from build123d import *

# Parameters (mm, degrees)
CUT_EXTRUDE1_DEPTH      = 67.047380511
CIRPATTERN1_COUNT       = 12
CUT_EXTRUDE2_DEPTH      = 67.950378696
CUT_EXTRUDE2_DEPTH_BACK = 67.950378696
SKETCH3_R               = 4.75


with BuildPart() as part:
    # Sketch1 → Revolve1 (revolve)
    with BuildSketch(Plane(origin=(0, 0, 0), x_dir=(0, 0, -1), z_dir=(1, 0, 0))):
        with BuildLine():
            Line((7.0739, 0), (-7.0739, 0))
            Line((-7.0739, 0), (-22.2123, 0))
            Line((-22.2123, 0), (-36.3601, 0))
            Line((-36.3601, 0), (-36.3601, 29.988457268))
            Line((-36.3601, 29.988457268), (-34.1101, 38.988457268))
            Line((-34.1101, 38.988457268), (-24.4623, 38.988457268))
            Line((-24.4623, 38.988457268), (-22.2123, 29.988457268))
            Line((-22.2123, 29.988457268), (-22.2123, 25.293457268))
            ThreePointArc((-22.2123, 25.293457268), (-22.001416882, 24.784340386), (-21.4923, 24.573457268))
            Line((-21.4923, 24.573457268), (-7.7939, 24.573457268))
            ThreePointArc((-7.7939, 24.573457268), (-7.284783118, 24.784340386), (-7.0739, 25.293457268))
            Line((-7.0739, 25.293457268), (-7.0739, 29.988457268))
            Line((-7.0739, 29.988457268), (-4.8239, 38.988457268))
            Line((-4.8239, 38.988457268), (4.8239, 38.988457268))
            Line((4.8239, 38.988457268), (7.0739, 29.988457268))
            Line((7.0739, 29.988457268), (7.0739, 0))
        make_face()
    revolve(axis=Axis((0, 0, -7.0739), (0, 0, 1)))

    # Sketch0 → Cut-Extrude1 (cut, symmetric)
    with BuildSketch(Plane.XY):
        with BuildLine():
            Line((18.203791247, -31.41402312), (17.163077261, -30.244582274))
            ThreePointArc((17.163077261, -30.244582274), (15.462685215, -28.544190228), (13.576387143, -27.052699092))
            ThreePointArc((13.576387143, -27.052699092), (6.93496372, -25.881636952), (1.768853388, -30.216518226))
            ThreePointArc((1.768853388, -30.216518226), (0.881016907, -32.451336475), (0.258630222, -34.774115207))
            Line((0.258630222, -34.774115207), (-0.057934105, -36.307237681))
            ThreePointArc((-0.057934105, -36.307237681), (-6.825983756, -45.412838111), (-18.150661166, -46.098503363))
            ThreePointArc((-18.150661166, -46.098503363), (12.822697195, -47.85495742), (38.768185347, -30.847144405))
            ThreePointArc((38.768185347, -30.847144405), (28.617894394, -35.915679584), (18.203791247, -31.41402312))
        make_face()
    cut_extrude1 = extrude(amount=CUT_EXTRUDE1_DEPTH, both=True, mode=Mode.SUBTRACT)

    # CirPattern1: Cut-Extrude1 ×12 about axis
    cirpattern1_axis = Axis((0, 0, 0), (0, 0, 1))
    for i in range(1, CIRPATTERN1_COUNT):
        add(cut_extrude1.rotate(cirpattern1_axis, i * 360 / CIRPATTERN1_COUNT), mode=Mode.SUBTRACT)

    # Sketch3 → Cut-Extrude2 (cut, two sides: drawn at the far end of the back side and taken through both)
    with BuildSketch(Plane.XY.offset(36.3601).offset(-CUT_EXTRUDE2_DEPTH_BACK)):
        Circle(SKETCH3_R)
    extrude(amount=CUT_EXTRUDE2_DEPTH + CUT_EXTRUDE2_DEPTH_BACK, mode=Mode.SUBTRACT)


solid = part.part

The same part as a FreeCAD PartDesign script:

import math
import FreeCAD as App
import Part
import Sketcher
from FreeCAD import Vector
Q = App.Units.Quantity

doc = App.newDocument("Part")
body = doc.addObject("PartDesign::Body", "Body")

# Sketch on YZ plane
sketch1 = doc.addObject("Sketcher::SketchObject", "Sketch")
body.addObject(sketch1)
sketch1.AttachmentSupport = (doc.YZ_Plane, [""])
sketch1.MapMode = "FlatFace"
sketch1.addGeometry(Part.LineSegment(Vector(0, 36.3601, 0), Vector(0, -7.0739, 0)), False)
sketch1.addGeometry(Part.LineSegment(Vector(0, -7.0739, 0), Vector(29.988457, -7.0739, 0)), False)
sketch1.addGeometry(Part.LineSegment(Vector(29.988457, -7.0739, 0), Vector(38.988457, -4.8239, 0)), False)
sketch1.addGeometry(Part.LineSegment(Vector(38.988457, -4.8239, 0), Vector(38.988457, 4.8239, 0)), False)
sketch1.addGeometry(Part.LineSegment(Vector(38.988457, 4.8239, 0), Vector(29.988457, 7.0739, 0)), False)
sketch1.addGeometry(Part.LineSegment(Vector(29.988457, 7.0739, 0), Vector(25.293457, 7.0739, 0)), False)
sketch1.addGeometry(Part.ArcOfCircle(Part.Circle(Vector(25.293457, 7.7939, 0), Vector(0, 0, 1), 0.72), math.radians(-180), math.radians(-90)), False)
sketch1.addGeometry(Part.LineSegment(Vector(24.573457, 7.7939, 0), Vector(24.573457, 21.4923, 0)), False)
sketch1.addGeometry(Part.ArcOfCircle(Part.Circle(Vector(25.293457, 21.4923, 0), Vector(0, 0, 1), 0.72), math.radians(90), math.radians(180)), False)
sketch1.addGeometry(Part.LineSegment(Vector(25.293457, 22.2123, 0), Vector(29.988457, 22.2123, 0)), False)
sketch1.addGeometry(Part.LineSegment(Vector(29.988457, 22.2123, 0), Vector(38.988457, 24.4623, 0)), False)
sketch1.addGeometry(Part.LineSegment(Vector(38.988457, 24.4623, 0), Vector(38.988457, 34.1101, 0)), False)
sketch1.addGeometry(Part.LineSegment(Vector(38.988457, 34.1101, 0), Vector(29.988457, 36.3601, 0)), False)
sketch1.addGeometry(Part.LineSegment(Vector(29.988457, 36.3601, 0), Vector(0, 36.3601, 0)), False)
sketch1.addConstraint(Sketcher.Constraint("Coincident", 0, 2, 1, 1))
sketch1.addConstraint(Sketcher.Constraint("Coincident", 1, 2, 2, 1))
sketch1.addConstraint(Sketcher.Constraint("Coincident", 2, 2, 3, 1))
sketch1.addConstraint(Sketcher.Constraint("Coincident", 3, 2, 4, 1))
sketch1.addConstraint(Sketcher.Constraint("Coincident", 4, 2, 5, 1))
sketch1.addConstraint(Sketcher.Constraint("Tangent", 5, 2, 6, 2))
sketch1.addConstraint(Sketcher.Constraint("Tangent", 6, 1, 7, 1))
sketch1.addConstraint(Sketcher.Constraint("Tangent", 7, 2, 8, 2))
sketch1.addConstraint(Sketcher.Constraint("Tangent", 8, 1, 9, 1))
sketch1.addConstraint(Sketcher.Constraint("Coincident", 9, 2, 10, 1))
sketch1.addConstraint(Sketcher.Constraint("Coincident", 10, 2, 11, 1))
sketch1.addConstraint(Sketcher.Constraint("Coincident", 11, 2, 12, 1))
sketch1.addConstraint(Sketcher.Constraint("Coincident", 12, 2, 13, 1))
sketch1.addConstraint(Sketcher.Constraint("Coincident", 13, 2, 0, 1))
sketch1.addConstraint(Sketcher.Constraint("Vertical", 0))
sketch1.addConstraint(Sketcher.Constraint("Horizontal", 1))
sketch1.addConstraint(Sketcher.Constraint("Vertical", 3))
sketch1.addConstraint(Sketcher.Constraint("Horizontal", 5))
sketch1.addConstraint(Sketcher.Constraint("Vertical", 7))
sketch1.addConstraint(Sketcher.Constraint("Horizontal", 9))
sketch1.addConstraint(Sketcher.Constraint("Vertical", 11))
sketch1.addConstraint(Sketcher.Constraint("Horizontal", 13))
sketch1.addConstraint(Sketcher.Constraint("Equal", 6, 8))
sketch1.addConstraint(Sketcher.Constraint("Symmetric", 1, 2, 4, 2, -1))
sketch1.addConstraint(Sketcher.Constraint("PointOnObject", 0, 2, -2))
sketch1.addConstraint(Sketcher.Constraint("Parallel", 2, 10))
sketch1.addConstraint(Sketcher.Constraint("Parallel", 4, 12))
sketch1.addConstraint(Sketcher.Constraint("Vertical", 4, 2, 9, 2))
sketch1.addConstraint(Sketcher.Constraint("Vertical", 3, 2, 10, 2))
sketch1.addConstraint(Sketcher.Constraint("Vertical", 9, 2, 12, 2))
sketch1.addConstraint(Sketcher.Constraint("Equal", 3, 11))
sketch1.addConstraint(Sketcher.Constraint("Equal", 2, 4))
sketch1.addConstraint(Sketcher.Constraint("Radius", 6, Q("0.72 mm")))
sketch1.addConstraint(Sketcher.Constraint("DistanceX", 1, 2, 2, 2, Q("9 mm")))
sketch1.addConstraint(Sketcher.Constraint("DistanceX", 5, 2, 5, 1, Q("4.695 mm")))
sketch1.addConstraint(Sketcher.Constraint("DistanceY", 0, 2, 0, 1, Q("43.434 mm")))
sketch1.addConstraint(Sketcher.Constraint("DistanceY", 1, 2, 2, 2, Q("2.25 mm")))
sketch1.addConstraint(Sketcher.Constraint("DistanceY", 3, 1, 3, 2, Q("9.6478 mm")))
sketch1.addConstraint(Sketcher.Constraint("DistanceX", 1, 1, 1, 2, Q("29.988457 mm")))
revolution = doc.addObject("PartDesign::Revolution", "Revolution")
body.addObject(revolution)
revolution.Profile = sketch1
revolution.ReferenceAxis = (sketch1, ["V_Axis"])
revolution.Angle = 360

# Sketch on XY plane
sketch2 = doc.addObject("Sketcher::SketchObject", "Sketch001")
body.addObject(sketch2)
sketch2.AttachmentSupport = (doc.XY_Plane, [""])
sketch2.MapMode = "FlatFace"
sketch2.addGeometry(Part.LineSegment(Vector(18.203791, -31.414023, 0), Vector(17.163077, -30.244582, 0)), False)
sketch2.addGeometry(Part.ArcOfCircle(Part.Circle(Vector(1.715579, -43.991688, 0), Vector(0, 0, 1), 20.678687), math.radians(41.666667), math.radians(55)), False)
sketch2.addGeometry(Part.ArcOfCircle(Part.Circle(Vector(9, -33.588457, 0), Vector(0, 0, 1), 7.978688), math.radians(55), math.radians(155)), False)
sketch2.addGeometry(Part.ArcOfCircle(Part.Circle(Vector(20.510109, -38.955709, 0), Vector(0, 0, 1), 20.678687), math.radians(155), math.radians(168.333333)), False)
sketch2.addGeometry(Part.LineSegment(Vector(0.25863, -34.774115, 0), Vector(-0.057934, -36.307238, 0)), False)
sketch2.addGeometry(Part.ArcOfCircle(Part.Circle(Vector(-13.225, -33.588457, 0), Vector(0, 0, 1), 13.444828), math.radians(-111.491368), math.radians(-11.666667)), False)
sketch2.addGeometry(Part.ArcOfCircle(Part.Circle(Vector(0, 0, 0), Vector(0, 0, 1), 49.543098), math.radians(-111.491368), math.radians(-38.508632)), False)
sketch2.addGeometry(Part.ArcOfCircle(Part.Circle(Vector(28.247415, -22.475957, 0), Vector(0, 0, 1), 13.444828), math.radians(-138.333333), math.radians(-38.508632)), False)
sketch2.addConstraint(Sketcher.Constraint("Tangent", 0, 2, 1, 1))
sketch2.addConstraint(Sketcher.Constraint("Tangent", 1, 2, 2, 1))
sketch2.addConstraint(Sketcher.Constraint("Tangent", 2, 2, 3, 1))
sketch2.addConstraint(Sketcher.Constraint("Tangent", 3, 2, 4, 1))
sketch2.addConstraint(Sketcher.Constraint("Tangent", 4, 2, 5, 2))
sketch2.addConstraint(Sketcher.Constraint("Tangent", 5, 1, 6, 1))
sketch2.addConstraint(Sketcher.Constraint("Tangent", 6, 2, 7, 2))
sketch2.addConstraint(Sketcher.Constraint("Tangent", 7, 1, 0, 1))
sketch2.addConstraint(Sketcher.Constraint("Coincident", 6, 3, -1, 1))
sketch2.addConstraint(Sketcher.Constraint("Equal", 1, 3))
sketch2.addConstraint(Sketcher.Constraint("Equal", 5, 7))
sketch2.addConstraint(Sketcher.Constraint("Horizontal", 2, 3, 5, 3))
sketch2.addConstraint(Sketcher.Constraint("Equal", 0, 4))
sketch2.addConstraint(Sketcher.Constraint("DistanceX", -1, 1, 2, 3, Q("9 mm")))
sketch2.addConstraint(Sketcher.Constraint("DistanceX", 5, 3, -1, 1, Q("13.225 mm")))
sketch2.addConstraint(Sketcher.Constraint("Radius", 1, Q("20.678687 mm")))
sketch2.addConstraint(Sketcher.Constraint("Radius", 2, Q("7.978688 mm")))
sketch2.addConstraint(Sketcher.Constraint("Radius", 5, Q("13.444828 mm")))
sketch2.addConstraint(Sketcher.Constraint("Radius", 6, Q("49.543098 mm")))
sketch2.addConstraint(Sketcher.Constraint("DistanceY", 1, 2, -1, 1, Q("27.052699 mm")))
sketch2.addConstraint(Sketcher.Constraint("DistanceY", 2, 3, 7, 3, Q("11.1125 mm")))
pocket1 = doc.addObject("PartDesign::Pocket", "Pocket")
body.addObject(pocket1)
pocket1.Profile = sketch2
pocket1.Length = 134.094761
pocket1.Midplane = True
doc.recompute()

polarpattern = doc.addObject("PartDesign::PolarPattern", "PolarPattern")
body.addObject(polarpattern)
polarpattern.Originals = [pocket1]
polarpattern.Axis = (doc.Z_Axis, [""])
polarpattern.Angle = 360
polarpattern.Occurrences = 12
body.Tip = polarpattern

# Sketch on XY plane
sketch3 = doc.addObject("Sketcher::SketchObject", "Sketch002")
body.addObject(sketch3)
sketch3.AttachmentSupport = (doc.XY_Plane, [""])
sketch3.MapMode = "FlatFace"
sketch3.AttachmentOffset = App.Placement(Vector(0, 0, 36.3601), App.Rotation())
sketch3.addGeometry(Part.Circle(Vector(0, 0, 0), Vector(0, 0, 1), 4.75), False)
sketch3.addConstraint(Sketcher.Constraint("Coincident", 0, 3, -1, 1))
sketch3.addConstraint(Sketcher.Constraint("Diameter", 0, Q("9.5 mm")))
pocket2 = doc.addObject("PartDesign::Pocket", "Pocket001")
body.addObject(pocket2)
pocket2.Profile = sketch3
pocket2.Type = "ThroughAll"
pocket2.Midplane = True

doc.recompute()
